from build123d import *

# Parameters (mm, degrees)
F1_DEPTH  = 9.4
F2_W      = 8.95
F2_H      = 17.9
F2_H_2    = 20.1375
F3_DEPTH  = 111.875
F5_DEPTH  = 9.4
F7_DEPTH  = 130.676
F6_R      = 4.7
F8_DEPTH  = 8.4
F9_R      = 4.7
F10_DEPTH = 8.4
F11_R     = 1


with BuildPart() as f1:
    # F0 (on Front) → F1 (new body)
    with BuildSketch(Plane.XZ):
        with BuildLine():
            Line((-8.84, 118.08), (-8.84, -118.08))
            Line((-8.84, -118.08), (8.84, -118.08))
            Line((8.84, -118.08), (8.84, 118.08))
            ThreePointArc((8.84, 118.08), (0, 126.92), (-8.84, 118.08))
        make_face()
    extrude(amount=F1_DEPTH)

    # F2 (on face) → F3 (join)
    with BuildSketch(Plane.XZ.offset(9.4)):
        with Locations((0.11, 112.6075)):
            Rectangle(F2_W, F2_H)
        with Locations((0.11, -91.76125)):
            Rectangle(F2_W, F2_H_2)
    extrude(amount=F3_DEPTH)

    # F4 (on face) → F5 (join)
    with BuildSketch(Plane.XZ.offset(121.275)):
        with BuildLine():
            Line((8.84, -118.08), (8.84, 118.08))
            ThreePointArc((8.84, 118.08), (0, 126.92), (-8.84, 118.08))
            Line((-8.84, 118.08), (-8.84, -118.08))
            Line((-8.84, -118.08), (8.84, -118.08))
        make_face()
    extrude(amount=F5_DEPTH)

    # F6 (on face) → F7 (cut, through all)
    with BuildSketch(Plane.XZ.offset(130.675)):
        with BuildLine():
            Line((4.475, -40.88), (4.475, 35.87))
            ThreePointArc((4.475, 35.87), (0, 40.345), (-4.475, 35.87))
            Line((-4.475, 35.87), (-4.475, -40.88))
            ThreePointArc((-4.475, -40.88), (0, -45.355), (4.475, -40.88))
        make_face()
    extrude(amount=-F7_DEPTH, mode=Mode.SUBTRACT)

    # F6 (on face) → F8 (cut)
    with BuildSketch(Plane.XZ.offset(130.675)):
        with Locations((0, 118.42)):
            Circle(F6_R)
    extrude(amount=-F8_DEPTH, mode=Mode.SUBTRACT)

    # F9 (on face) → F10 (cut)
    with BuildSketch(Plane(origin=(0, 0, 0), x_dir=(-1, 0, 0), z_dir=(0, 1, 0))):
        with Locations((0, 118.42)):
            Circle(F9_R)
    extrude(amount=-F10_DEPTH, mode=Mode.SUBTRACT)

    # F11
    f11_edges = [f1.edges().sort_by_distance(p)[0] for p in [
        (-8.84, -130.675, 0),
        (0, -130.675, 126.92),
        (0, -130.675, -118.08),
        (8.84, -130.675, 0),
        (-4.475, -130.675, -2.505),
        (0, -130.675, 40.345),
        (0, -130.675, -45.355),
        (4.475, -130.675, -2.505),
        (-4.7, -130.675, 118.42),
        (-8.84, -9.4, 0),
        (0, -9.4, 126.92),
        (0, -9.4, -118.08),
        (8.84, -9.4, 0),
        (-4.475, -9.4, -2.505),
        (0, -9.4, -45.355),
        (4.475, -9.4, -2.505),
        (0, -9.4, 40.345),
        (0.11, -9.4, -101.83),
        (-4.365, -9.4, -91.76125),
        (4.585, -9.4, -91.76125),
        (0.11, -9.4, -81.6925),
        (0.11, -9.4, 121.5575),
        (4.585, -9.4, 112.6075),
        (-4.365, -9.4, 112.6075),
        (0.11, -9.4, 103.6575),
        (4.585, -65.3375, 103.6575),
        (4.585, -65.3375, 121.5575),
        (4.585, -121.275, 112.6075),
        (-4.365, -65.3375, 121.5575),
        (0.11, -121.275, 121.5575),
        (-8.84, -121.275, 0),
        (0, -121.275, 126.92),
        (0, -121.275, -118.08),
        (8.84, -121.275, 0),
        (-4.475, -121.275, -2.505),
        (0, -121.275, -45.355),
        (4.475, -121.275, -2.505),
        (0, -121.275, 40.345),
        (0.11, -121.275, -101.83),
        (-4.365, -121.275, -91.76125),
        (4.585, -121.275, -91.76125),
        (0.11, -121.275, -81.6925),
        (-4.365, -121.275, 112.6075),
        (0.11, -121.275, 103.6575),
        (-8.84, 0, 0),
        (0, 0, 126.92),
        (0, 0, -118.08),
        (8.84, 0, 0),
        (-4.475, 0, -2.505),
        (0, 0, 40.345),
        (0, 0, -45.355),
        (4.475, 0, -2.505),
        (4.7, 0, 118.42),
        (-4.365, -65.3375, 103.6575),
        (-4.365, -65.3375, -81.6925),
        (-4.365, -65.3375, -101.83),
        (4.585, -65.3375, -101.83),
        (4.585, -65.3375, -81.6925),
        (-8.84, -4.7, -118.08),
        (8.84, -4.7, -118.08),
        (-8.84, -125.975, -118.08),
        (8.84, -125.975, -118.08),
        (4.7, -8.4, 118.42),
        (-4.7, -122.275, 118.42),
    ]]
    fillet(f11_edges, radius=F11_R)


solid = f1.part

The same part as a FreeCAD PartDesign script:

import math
import FreeCAD as App
import Part
import Sketcher

V = App.Vector


def add_polygon(sketch, points):
    """Adds a closed chain of lines whose ends are joined by coincident constraints."""
    first, n = sketch.GeometryCount, len(points)
    for a, b in zip(points, points[1:] + points[:1]):
        sketch.addGeometry(Part.LineSegment(App.Vector(*a, 0), App.Vector(*b, 0)), False)
    for i in range(n):
        sketch.addConstraint(Sketcher.Constraint("Coincident", first + i, 2, first + (i + 1) % n, 1))

doc = App.newDocument("Part")
params = doc.addObject("Spreadsheet::Sheet", "Params")
for row, (alias, value) in enumerate([
    ("sketch1_radius", "8.84 mm"),
    ("sketch1_height", "236.16 mm"),
    ("pad1_length", "9.4 mm"),
    ("sketch2_height", "17.9 mm"),
    ("sketch2_width", "8.95 mm"),
    ("pad2_length", "111.875 mm"),
    ("sketch3_radius", "8.84 mm"),
    ("sketch3_height", "236.16 mm"),
    ("pad3_length", "9.4 mm"),
    ("sketch4_height", "76.75 mm"),
    ("sketch5_diameter", "9.4 mm"),
    ("pocket2_length", "8.4 mm"),
    ("sketch6_diameter", "9.4 mm"),
    ("pocket3_length", "8.4 mm"),
    ("fillet_radius", "1 mm"),
], start=1):
    params.set(f"A{row}", alias)
    params.set(f"B{row}", "=" + value)
    params.setAlias(f"B{row}", alias)

body = doc.addObject("PartDesign::Body", "Body")

# Sketch on XZ plane
sketch1 = body.newObject("Sketcher::SketchObject", "Sketch")
sketch1.AttachmentSupport = (doc.getObject("XZ_Plane"), [""])
sketch1.MapMode = "FlatFace"
sketch1.addGeometry(Part.LineSegment(V(-9, 118, 0), V(-9, -118, 0)), False)
sketch1.addGeometry(Part.LineSegment(V(-9, -118, 0), V(9, -118, 0)), False)
sketch1.addGeometry(Part.LineSegment(V(9, -118, 0), V(9, 118, 0)), False)
sketch1.addGeometry(Part.ArcOfCircle(Part.Circle(V(0, 118, 0), V(0, 0, 1), 9), math.radians(0), math.radians(180)), False)
sketch1.addConstraint(Sketcher.Constraint("Coincident", 0, 2, 1, 1))
sketch1.addConstraint(Sketcher.Constraint("Coincident", 1, 2, 2, 1))
sketch1.addConstraint(Sketcher.Constraint("Tangent", 2, 2, 3, 1))
sketch1.addConstraint(Sketcher.Constraint("Tangent", 3, 2, 0, 1))
sketch1.addConstraint(Sketcher.Constraint("Vertical", 0))
sketch1.addConstraint(Sketcher.Constraint("Horizontal", 1))
sketch1.addConstraint(Sketcher.Constraint("Vertical", 2))
sketch1.addConstraint(Sketcher.Constraint("Symmetric", 0, 2, 2, 2, -1, 1))
sketch1.addConstraint(Sketcher.Constraint("Radius", 3, 8.84))
sketch1.addConstraint(Sketcher.Constraint("DistanceY", 0, 2, 0, 1, 236.16))
sketch1.setExpression("Constraints[8]", "Params.sketch1_radius")
sketch1.setExpression("Constraints[9]", "Params.sketch1_height")
pad1 = body.newObject("PartDesign::Pad", "Pad")
pad1.Profile = sketch1
pad1.setExpression("Length", "Params.pad1_length")

# Sketch on XZ plane
sketch2 = body.newObject("Sketcher::SketchObject", "Sketch001")
sketch2.AttachmentSupport = (doc.getObject("XZ_Plane"), [""])
sketch2.MapMode = "FlatFace"
sketch2.AttachmentOffset = App.Placement(V(0, 0, 9.4), App.Rotation())
add_polygon(sketch2, [(-4, 122), (-4, 104), (5, 104), (5, 122)])  # lines 0-3
add_polygon(sketch2, [(-4, -82), (-4, -102), (5, -102), (5, -82)])  # lines 4-7
sketch2.addConstraint(Sketcher.Constraint("Vertical", 0))
sketch2.addConstraint(Sketcher.Constraint("Horizontal", 1))
sketch2.addConstraint(Sketcher.Constraint("Vertical", 2))
sketch2.addConstraint(Sketcher.Constraint("Horizontal", 3))
sketch2.addConstraint(Sketcher.Constraint("Vertical", 4))
sketch2.addConstraint(Sketcher.Constraint("Horizontal", 5))
sketch2.addConstraint(Sketcher.Constraint("Vertical", 6))
sketch2.addConstraint(Sketcher.Constraint("Horizontal", 7))
sketch2.addConstraint(Sketcher.Constraint("Vertical", 3, 2, 4, 2))
sketch2.addConstraint(Sketcher.Constraint("Vertical", 2, 2, 5, 2))
sketch2.addConstraint(Sketcher.Constraint("DistanceY", 0, 2, 0, 1, 17.9))
sketch2.addConstraint(Sketcher.Constraint("DistanceX", 1, 1, 1, 2, 8.95))
sketch2.addConstraint(Sketcher.Constraint("DistanceY", 4, 2, -1, 1, 101.83))
sketch2.addConstraint(Sketcher.Constraint("DistanceY", 6, 2, 1, 2, 185.35))
sketch2.addConstraint(Sketcher.Constraint("DistanceY", 4, 2, 4, 1, 20.1375))
sketch2.addConstraint(Sketcher.Constraint("DistanceX", 0, 2, -1, 1, 4.365))
sketch2.setExpression("Constraints[18]", "Params.sketch2_height")
sketch2.setExpression("Constraints[19]", "Params.sketch2_width")
pad2 = body.newObject("PartDesign::Pad", "Pad001")
pad2.Profile = sketch2
pad2.setExpression("Length", "Params.pad2_length")

# Sketch on XZ plane
sketch3 = body.newObject("Sketcher::SketchObject", "Sketch002")
sketch3.AttachmentSupport = (doc.getObject("XZ_Plane"), [""])
sketch3.MapMode = "FlatFace"
sketch3.AttachmentOffset = App.Placement(V(0, 0, 121.275), App.Rotation())
sketch3.addGeometry(Part.LineSegment(V(9, -118, 0), V(9, 118, 0)), False)
sketch3.addGeometry(Part.ArcOfCircle(Part.Circle(V(0, 118, 0), V(0, 0, 1), 9), math.radians(0), math.radians(180)), False)
sketch3.addGeometry(Part.LineSegment(V(-9, 118, 0), V(-9, -118, 0)), False)
sketch3.addGeometry(Part.LineSegment(V(-9, -118, 0), V(9, -118, 0)), False)
sketch3.addConstraint(Sketcher.Constraint("Tangent", 0, 2, 1, 1))
sketch3.addConstraint(Sketcher.Constraint("Tangent", 1, 2, 2, 1))
sketch3.addConstraint(Sketcher.Constraint("Coincident", 2, 2, 3, 1))
sketch3.addConstraint(Sketcher.Constraint("Coincident", 3, 2, 0, 1))
sketch3.addConstraint(Sketcher.Constraint("Vertical", 0))
sketch3.addConstraint(Sketcher.Constraint("Vertical", 2))
sketch3.addConstraint(Sketcher.Constraint("Horizontal", 3))
sketch3.addConstraint(Sketcher.Constraint("Symmetric", 0, 2, 2, 2, -1, 1))
sketch3.addConstraint(Sketcher.Constraint("Radius", 1, 8.84))
sketch3.addConstraint(Sketcher.Constraint("DistanceY", 0, 1, 0, 2, 236.16))
sketch3.setExpression("Constraints[8]", "Params.sketch3_radius")
sketch3.setExpression("Constraints[9]", "Params.sketch3_height")
pad3 = body.newObject("PartDesign::Pad", "Pad002")
pad3.Profile = sketch3
pad3.setExpression("Length", "Params.pad3_length")

# Sketch on XZ plane
sketch4 = body.newObject("Sketcher::SketchObject", "Sketch003")
sketch4.AttachmentSupport = (doc.getObject("XZ_Plane"), [""])
sketch4.MapMode = "FlatFace"
sketch4.AttachmentOffset = App.Placement(V(0, 0, 130.675), App.Rotation())
sketch4.addGeometry(Part.LineSegment(V(4.5, -40.9, 0), V(4.5, 35.9, 0)), False)
sketch4.addGeometry(Part.ArcOfCircle(Part.Circle(V(0, 35.9, 0), V(0, 0, 1), 4.5), math.radians(0), math.radians(180)), False)
sketch4.addGeometry(Part.LineSegment(V(-4.5, 35.9, 0), V(-4.5, -40.9, 0)), False)
sketch4.addGeometry(Part.ArcOfCircle(Part.Circle(V(0, -40.9, 0), V(0, 0, 1), 4.5), math.radians(180), math.radians(360)), False)
sketch4.addConstraint(Sketcher.Constraint("Tangent", 0, 2, 1, 1))
sketch4.addConstraint(Sketcher.Constraint("Tangent", 1, 2, 2, 1))
sketch4.addConstraint(Sketcher.Constraint("Tangent", 2, 2, 3, 1))
sketch4.addConstraint(Sketcher.Constraint("Tangent", 3, 2, 0, 1))
sketch4.addConstraint(Sketcher.Constraint("Vertical", 0))
sketch4.addConstraint(Sketcher.Constraint("Vertical", 2))
sketch4.addConstraint(Sketcher.Constraint("PointOnObject", 1, 3, -2))
sketch4.addConstraint(Sketcher.Constraint("Radius", 1, 4.475))
sketch4.addConstraint(Sketcher.Constraint("DistanceY", 0, 1, 0, 2, 76.75))
sketch4.addConstraint(Sketcher.Constraint("DistanceY", -1, 1, 1, 3, 35.87))
sketch4.setExpression("Constraints[8]", "Params.sketch4_height")
pocket1 = body.newObject("PartDesign::Pocket", "Pocket")
pocket1.Profile = sketch4
pocket1.Type = "ThroughAll"

# Sketch on XZ plane
sketch5 = body.newObject("Sketcher::SketchObject", "Sketch004")
sketch5.AttachmentSupport = (doc.getObject("XZ_Plane"), [""])
sketch5.MapMode = "FlatFace"
sketch5.AttachmentOffset = App.Placement(V(0, 0, 130.675), App.Rotation())
sketch5.addGeometry(Part.Circle(V(0, 118.4, 0), V(0, 0, 1), 4.7), False)
sketch5.addConstraint(Sketcher.Constraint("PointOnObject", 0, 3, -2))
sketch5.addConstraint(Sketcher.Constraint("Diameter", 0, 9.4))
sketch5.addConstraint(Sketcher.Constraint("DistanceY", -1, 1, 0, 3, 118.42))
sketch5.setExpression("Constraints[1]", "Params.sketch5_diameter")
pocket2 = body.newObject("PartDesign::Pocket", "Pocket001")
pocket2.Profile = sketch5
pocket2.setExpression("Length", "Params.pocket2_length")

# Sketch on XZ plane
sketch6 = body.newObject("Sketcher::SketchObject", "Sketch005")
sketch6.AttachmentSupport = (doc.getObject("XZ_Plane"), [""])
sketch6.MapMode = "FlatFace"
sketch6.addGeometry(Part.Circle(V(0, 118.4, 0), V(0, 0, 1), 4.7), False)
sketch6.addConstraint(Sketcher.Constraint("PointOnObject", 0, 3, -2))
sketch6.addConstraint(Sketcher.Constraint("Diameter", 0, 9.4))
sketch6.addConstraint(Sketcher.Constraint("DistanceY", -1, 1, 0, 3, 118.42))
sketch6.setExpression("Constraints[1]", "Params.sketch6_diameter")
pocket3 = body.newObject("PartDesign::Pocket", "Pocket002")
pocket3.Profile = sketch6
pocket3.setExpression("Length", "Params.pocket3_length")
pocket3.Reversed = True
doc.recompute()

fillet = body.newObject("PartDesign::Fillet", "Fillet")
fillet.Base = (pocket3, ["Edge1"])
fillet.UseAllEdges = True
fillet.setExpression("Radius", "Params.fillet_radius")

doc.recompute()
